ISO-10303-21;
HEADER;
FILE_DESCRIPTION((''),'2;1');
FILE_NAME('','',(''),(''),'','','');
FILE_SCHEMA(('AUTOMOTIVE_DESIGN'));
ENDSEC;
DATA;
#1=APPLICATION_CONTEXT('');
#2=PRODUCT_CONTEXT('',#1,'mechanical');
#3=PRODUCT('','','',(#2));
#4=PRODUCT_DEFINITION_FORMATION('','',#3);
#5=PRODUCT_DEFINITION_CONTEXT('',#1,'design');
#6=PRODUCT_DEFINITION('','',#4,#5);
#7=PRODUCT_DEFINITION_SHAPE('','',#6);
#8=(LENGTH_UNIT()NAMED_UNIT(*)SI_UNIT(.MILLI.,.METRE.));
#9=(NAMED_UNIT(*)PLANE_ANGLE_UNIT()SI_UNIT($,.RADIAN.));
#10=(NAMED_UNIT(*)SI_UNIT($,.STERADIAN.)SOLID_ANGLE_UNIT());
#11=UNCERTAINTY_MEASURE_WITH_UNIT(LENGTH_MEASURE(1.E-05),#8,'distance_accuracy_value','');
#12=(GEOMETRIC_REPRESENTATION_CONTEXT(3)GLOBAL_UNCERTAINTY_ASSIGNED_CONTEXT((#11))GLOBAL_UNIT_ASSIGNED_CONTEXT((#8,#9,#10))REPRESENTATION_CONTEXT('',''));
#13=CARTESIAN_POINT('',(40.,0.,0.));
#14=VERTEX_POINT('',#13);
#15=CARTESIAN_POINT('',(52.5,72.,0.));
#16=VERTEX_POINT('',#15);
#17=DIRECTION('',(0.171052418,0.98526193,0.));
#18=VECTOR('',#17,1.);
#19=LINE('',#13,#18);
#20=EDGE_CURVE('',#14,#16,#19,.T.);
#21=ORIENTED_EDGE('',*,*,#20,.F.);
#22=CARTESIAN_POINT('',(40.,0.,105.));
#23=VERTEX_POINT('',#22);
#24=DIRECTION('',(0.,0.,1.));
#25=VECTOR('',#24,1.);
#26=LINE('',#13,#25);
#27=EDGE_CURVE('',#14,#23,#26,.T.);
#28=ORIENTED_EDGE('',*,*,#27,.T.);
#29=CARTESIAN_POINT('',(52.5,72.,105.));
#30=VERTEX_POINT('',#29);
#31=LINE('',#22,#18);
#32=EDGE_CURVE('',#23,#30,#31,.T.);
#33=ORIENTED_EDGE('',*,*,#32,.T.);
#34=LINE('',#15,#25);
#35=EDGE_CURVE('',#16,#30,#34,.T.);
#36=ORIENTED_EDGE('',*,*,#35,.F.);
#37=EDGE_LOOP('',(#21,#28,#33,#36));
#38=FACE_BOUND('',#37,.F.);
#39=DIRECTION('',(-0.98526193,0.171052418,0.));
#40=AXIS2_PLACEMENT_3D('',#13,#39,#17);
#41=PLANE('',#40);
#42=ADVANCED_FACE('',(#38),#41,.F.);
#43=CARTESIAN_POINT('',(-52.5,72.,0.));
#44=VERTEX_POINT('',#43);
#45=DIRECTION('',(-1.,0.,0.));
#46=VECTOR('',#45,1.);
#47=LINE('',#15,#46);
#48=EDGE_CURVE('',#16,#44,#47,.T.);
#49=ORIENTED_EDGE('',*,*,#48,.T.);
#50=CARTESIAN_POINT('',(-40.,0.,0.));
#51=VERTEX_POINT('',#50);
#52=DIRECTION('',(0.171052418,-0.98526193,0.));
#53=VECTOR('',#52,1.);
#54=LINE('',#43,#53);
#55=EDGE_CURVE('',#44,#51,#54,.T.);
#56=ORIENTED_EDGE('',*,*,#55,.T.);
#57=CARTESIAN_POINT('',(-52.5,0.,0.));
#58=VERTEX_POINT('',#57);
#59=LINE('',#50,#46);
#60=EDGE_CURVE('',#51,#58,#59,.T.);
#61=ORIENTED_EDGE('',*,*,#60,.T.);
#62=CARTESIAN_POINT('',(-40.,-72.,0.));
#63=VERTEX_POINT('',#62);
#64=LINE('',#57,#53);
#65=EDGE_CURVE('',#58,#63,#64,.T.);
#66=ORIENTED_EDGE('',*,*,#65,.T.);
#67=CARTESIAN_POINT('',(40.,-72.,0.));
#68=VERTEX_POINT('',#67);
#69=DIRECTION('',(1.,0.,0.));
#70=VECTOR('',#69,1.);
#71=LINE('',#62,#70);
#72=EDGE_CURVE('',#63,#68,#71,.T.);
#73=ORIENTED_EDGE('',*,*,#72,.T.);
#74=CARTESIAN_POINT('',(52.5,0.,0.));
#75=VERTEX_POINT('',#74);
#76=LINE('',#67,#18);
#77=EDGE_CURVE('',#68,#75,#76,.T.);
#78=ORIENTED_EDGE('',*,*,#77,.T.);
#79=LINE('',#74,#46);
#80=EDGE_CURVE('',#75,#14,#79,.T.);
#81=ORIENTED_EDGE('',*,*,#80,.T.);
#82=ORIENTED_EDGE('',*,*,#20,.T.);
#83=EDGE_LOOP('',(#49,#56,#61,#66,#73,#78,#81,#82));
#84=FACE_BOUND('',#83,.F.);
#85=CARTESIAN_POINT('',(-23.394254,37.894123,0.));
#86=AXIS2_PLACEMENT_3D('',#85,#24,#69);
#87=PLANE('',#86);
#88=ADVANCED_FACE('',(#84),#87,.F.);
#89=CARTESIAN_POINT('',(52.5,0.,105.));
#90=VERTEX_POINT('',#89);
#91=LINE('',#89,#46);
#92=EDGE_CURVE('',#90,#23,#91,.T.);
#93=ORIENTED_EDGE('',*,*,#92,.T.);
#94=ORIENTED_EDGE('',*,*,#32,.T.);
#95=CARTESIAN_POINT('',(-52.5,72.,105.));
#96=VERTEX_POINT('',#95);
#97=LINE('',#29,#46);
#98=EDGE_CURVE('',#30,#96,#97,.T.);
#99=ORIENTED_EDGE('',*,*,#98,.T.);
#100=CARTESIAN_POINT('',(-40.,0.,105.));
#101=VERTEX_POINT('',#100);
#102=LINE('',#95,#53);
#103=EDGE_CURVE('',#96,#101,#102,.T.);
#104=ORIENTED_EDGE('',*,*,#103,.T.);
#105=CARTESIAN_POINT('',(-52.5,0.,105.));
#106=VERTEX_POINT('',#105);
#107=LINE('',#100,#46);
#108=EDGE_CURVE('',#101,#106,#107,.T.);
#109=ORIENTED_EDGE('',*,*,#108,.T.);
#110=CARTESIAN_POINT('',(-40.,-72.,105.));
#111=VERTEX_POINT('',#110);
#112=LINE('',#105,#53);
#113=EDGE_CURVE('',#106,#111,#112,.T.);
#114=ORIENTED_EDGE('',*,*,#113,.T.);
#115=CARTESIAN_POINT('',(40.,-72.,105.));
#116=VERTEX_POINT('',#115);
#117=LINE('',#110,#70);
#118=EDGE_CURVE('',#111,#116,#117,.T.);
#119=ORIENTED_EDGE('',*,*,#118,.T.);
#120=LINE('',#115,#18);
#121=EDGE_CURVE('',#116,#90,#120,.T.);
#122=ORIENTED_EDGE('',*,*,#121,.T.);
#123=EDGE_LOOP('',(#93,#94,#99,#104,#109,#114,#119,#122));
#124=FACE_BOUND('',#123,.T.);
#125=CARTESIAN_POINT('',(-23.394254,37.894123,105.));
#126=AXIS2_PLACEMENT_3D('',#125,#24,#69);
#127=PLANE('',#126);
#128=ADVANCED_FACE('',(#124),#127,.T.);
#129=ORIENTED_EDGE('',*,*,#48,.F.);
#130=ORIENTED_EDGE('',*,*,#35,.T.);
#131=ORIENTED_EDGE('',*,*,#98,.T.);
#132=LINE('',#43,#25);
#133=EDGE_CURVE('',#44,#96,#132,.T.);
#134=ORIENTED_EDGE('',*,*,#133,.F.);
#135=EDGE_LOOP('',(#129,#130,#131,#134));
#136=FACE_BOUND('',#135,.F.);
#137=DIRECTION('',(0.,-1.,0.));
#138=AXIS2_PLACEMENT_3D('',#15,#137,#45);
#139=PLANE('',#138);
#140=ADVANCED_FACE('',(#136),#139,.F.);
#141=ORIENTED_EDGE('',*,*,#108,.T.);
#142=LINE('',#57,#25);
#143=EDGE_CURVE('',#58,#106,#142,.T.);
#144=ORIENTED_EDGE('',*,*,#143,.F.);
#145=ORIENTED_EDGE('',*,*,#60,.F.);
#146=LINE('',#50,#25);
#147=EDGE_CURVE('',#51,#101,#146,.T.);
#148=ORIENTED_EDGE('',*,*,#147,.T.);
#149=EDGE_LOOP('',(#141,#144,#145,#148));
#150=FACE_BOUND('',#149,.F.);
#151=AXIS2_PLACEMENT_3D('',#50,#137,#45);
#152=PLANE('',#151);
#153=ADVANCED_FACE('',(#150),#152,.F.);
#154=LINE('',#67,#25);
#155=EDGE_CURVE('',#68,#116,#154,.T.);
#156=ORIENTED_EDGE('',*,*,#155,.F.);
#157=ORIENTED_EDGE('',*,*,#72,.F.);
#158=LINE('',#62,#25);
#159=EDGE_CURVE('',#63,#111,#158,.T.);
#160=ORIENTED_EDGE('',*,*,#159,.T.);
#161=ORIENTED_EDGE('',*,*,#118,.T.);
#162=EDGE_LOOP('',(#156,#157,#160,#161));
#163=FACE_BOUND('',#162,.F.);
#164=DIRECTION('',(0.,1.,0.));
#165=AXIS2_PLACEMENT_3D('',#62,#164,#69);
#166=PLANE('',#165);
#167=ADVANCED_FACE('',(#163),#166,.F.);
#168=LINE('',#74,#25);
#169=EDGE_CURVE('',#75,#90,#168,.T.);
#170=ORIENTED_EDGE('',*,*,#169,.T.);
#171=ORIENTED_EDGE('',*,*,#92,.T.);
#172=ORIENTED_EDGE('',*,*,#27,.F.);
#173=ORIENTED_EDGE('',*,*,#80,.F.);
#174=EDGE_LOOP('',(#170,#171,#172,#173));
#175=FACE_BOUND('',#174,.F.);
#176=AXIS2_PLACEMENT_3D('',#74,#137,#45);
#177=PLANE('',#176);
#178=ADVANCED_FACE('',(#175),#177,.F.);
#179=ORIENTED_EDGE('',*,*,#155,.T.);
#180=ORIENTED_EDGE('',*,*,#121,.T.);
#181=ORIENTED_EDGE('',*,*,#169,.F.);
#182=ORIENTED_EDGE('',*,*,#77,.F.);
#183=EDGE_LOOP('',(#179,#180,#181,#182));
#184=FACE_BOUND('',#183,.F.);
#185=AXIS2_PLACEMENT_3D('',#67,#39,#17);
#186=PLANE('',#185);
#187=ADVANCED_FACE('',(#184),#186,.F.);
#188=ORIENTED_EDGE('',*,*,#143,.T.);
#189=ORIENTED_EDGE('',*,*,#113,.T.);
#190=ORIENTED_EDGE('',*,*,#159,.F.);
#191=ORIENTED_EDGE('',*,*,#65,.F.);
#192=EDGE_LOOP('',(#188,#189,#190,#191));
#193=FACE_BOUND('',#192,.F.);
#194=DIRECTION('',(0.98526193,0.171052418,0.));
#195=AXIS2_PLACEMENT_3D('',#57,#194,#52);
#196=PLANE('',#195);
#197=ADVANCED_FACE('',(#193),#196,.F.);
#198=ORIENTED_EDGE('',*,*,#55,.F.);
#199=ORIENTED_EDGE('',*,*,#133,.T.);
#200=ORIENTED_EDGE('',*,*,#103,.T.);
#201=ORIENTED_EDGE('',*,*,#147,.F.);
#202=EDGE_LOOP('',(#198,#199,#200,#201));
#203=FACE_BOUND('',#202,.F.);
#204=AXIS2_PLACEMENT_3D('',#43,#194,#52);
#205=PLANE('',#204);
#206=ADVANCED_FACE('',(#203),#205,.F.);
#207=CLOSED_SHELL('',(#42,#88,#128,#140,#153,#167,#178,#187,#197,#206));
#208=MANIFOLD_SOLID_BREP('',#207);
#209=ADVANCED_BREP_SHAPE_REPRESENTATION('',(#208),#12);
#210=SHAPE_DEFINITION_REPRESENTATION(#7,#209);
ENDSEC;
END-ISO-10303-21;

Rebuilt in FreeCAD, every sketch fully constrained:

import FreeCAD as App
import Part
import Sketcher

V = App.Vector
Q = App.Units.Quantity


def add_polygon(sketch, points):
    """Adds a closed chain of lines whose ends are joined by coincident constraints."""
    first, n = sketch.GeometryCount, len(points)
    for a, b in zip(points, points[1:] + points[:1]):
        sketch.addGeometry(Part.LineSegment(App.Vector(*a, 0), App.Vector(*b, 0)), False)
    for i in range(n):
        sketch.addConstraint(Sketcher.Constraint("Coincident", first + i, 2, first + (i + 1) % n, 1))

doc = App.newDocument("Part")
body = doc.addObject("PartDesign::Body", "Body")

sketch1 = body.newObject("Sketcher::SketchObject", "Sketch")
sketch1.AttachmentSupport = (doc.getObject("XY_Plane"), [""])
sketch1.MapMode = "FlatFace"
add_polygon(sketch1, [(-52.5, 72), (-40, 0), (-52.5, 0), (-40, -72), (40, -72), (52.5, 0), (40, 0), (52.5, 72)])
sketch1.addConstraint(Sketcher.Constraint("Horizontal", 1))
sketch1.addConstraint(Sketcher.Constraint("Horizontal", 3))
sketch1.addConstraint(Sketcher.Constraint("Horizontal", 5))
sketch1.addConstraint(Sketcher.Constraint("Horizontal", 7))
sketch1.addConstraint(Sketcher.Constraint("Symmetric", 1, 2, 4, 2, -1, 1))
sketch1.addConstraint(Sketcher.Constraint("Symmetric", 0, 2, 5, 2, -2))
sketch1.addConstraint(Sketcher.Constraint("Parallel", 0, 2))
sketch1.addConstraint(Sketcher.Constraint("Parallel", 4, 6))
sketch1.addConstraint(Sketcher.Constraint("Vertical", 0, 2, 2, 2))
sketch1.addConstraint(Sketcher.Constraint("Vertical", 3, 2, 5, 2))
sketch1.addConstraint(Sketcher.Constraint("Vertical", 4, 2, 6, 2))
sketch1.addConstraint(Sketcher.Constraint("DistanceX", 3, 1, 3, 2, Q("80 mm")))
sketch1.addConstraint(Sketcher.Constraint("DistanceX", 7, 2, 7, 1, Q("105 mm")))
sketch1.addConstraint(Sketcher.Constraint("DistanceY", 2, 2, -1, 1, Q("72 mm")))
pad1 = body.newObject("PartDesign::Pad", "Pad")
pad1.Profile = sketch1
pad1.Length = 105

doc.recompute()
